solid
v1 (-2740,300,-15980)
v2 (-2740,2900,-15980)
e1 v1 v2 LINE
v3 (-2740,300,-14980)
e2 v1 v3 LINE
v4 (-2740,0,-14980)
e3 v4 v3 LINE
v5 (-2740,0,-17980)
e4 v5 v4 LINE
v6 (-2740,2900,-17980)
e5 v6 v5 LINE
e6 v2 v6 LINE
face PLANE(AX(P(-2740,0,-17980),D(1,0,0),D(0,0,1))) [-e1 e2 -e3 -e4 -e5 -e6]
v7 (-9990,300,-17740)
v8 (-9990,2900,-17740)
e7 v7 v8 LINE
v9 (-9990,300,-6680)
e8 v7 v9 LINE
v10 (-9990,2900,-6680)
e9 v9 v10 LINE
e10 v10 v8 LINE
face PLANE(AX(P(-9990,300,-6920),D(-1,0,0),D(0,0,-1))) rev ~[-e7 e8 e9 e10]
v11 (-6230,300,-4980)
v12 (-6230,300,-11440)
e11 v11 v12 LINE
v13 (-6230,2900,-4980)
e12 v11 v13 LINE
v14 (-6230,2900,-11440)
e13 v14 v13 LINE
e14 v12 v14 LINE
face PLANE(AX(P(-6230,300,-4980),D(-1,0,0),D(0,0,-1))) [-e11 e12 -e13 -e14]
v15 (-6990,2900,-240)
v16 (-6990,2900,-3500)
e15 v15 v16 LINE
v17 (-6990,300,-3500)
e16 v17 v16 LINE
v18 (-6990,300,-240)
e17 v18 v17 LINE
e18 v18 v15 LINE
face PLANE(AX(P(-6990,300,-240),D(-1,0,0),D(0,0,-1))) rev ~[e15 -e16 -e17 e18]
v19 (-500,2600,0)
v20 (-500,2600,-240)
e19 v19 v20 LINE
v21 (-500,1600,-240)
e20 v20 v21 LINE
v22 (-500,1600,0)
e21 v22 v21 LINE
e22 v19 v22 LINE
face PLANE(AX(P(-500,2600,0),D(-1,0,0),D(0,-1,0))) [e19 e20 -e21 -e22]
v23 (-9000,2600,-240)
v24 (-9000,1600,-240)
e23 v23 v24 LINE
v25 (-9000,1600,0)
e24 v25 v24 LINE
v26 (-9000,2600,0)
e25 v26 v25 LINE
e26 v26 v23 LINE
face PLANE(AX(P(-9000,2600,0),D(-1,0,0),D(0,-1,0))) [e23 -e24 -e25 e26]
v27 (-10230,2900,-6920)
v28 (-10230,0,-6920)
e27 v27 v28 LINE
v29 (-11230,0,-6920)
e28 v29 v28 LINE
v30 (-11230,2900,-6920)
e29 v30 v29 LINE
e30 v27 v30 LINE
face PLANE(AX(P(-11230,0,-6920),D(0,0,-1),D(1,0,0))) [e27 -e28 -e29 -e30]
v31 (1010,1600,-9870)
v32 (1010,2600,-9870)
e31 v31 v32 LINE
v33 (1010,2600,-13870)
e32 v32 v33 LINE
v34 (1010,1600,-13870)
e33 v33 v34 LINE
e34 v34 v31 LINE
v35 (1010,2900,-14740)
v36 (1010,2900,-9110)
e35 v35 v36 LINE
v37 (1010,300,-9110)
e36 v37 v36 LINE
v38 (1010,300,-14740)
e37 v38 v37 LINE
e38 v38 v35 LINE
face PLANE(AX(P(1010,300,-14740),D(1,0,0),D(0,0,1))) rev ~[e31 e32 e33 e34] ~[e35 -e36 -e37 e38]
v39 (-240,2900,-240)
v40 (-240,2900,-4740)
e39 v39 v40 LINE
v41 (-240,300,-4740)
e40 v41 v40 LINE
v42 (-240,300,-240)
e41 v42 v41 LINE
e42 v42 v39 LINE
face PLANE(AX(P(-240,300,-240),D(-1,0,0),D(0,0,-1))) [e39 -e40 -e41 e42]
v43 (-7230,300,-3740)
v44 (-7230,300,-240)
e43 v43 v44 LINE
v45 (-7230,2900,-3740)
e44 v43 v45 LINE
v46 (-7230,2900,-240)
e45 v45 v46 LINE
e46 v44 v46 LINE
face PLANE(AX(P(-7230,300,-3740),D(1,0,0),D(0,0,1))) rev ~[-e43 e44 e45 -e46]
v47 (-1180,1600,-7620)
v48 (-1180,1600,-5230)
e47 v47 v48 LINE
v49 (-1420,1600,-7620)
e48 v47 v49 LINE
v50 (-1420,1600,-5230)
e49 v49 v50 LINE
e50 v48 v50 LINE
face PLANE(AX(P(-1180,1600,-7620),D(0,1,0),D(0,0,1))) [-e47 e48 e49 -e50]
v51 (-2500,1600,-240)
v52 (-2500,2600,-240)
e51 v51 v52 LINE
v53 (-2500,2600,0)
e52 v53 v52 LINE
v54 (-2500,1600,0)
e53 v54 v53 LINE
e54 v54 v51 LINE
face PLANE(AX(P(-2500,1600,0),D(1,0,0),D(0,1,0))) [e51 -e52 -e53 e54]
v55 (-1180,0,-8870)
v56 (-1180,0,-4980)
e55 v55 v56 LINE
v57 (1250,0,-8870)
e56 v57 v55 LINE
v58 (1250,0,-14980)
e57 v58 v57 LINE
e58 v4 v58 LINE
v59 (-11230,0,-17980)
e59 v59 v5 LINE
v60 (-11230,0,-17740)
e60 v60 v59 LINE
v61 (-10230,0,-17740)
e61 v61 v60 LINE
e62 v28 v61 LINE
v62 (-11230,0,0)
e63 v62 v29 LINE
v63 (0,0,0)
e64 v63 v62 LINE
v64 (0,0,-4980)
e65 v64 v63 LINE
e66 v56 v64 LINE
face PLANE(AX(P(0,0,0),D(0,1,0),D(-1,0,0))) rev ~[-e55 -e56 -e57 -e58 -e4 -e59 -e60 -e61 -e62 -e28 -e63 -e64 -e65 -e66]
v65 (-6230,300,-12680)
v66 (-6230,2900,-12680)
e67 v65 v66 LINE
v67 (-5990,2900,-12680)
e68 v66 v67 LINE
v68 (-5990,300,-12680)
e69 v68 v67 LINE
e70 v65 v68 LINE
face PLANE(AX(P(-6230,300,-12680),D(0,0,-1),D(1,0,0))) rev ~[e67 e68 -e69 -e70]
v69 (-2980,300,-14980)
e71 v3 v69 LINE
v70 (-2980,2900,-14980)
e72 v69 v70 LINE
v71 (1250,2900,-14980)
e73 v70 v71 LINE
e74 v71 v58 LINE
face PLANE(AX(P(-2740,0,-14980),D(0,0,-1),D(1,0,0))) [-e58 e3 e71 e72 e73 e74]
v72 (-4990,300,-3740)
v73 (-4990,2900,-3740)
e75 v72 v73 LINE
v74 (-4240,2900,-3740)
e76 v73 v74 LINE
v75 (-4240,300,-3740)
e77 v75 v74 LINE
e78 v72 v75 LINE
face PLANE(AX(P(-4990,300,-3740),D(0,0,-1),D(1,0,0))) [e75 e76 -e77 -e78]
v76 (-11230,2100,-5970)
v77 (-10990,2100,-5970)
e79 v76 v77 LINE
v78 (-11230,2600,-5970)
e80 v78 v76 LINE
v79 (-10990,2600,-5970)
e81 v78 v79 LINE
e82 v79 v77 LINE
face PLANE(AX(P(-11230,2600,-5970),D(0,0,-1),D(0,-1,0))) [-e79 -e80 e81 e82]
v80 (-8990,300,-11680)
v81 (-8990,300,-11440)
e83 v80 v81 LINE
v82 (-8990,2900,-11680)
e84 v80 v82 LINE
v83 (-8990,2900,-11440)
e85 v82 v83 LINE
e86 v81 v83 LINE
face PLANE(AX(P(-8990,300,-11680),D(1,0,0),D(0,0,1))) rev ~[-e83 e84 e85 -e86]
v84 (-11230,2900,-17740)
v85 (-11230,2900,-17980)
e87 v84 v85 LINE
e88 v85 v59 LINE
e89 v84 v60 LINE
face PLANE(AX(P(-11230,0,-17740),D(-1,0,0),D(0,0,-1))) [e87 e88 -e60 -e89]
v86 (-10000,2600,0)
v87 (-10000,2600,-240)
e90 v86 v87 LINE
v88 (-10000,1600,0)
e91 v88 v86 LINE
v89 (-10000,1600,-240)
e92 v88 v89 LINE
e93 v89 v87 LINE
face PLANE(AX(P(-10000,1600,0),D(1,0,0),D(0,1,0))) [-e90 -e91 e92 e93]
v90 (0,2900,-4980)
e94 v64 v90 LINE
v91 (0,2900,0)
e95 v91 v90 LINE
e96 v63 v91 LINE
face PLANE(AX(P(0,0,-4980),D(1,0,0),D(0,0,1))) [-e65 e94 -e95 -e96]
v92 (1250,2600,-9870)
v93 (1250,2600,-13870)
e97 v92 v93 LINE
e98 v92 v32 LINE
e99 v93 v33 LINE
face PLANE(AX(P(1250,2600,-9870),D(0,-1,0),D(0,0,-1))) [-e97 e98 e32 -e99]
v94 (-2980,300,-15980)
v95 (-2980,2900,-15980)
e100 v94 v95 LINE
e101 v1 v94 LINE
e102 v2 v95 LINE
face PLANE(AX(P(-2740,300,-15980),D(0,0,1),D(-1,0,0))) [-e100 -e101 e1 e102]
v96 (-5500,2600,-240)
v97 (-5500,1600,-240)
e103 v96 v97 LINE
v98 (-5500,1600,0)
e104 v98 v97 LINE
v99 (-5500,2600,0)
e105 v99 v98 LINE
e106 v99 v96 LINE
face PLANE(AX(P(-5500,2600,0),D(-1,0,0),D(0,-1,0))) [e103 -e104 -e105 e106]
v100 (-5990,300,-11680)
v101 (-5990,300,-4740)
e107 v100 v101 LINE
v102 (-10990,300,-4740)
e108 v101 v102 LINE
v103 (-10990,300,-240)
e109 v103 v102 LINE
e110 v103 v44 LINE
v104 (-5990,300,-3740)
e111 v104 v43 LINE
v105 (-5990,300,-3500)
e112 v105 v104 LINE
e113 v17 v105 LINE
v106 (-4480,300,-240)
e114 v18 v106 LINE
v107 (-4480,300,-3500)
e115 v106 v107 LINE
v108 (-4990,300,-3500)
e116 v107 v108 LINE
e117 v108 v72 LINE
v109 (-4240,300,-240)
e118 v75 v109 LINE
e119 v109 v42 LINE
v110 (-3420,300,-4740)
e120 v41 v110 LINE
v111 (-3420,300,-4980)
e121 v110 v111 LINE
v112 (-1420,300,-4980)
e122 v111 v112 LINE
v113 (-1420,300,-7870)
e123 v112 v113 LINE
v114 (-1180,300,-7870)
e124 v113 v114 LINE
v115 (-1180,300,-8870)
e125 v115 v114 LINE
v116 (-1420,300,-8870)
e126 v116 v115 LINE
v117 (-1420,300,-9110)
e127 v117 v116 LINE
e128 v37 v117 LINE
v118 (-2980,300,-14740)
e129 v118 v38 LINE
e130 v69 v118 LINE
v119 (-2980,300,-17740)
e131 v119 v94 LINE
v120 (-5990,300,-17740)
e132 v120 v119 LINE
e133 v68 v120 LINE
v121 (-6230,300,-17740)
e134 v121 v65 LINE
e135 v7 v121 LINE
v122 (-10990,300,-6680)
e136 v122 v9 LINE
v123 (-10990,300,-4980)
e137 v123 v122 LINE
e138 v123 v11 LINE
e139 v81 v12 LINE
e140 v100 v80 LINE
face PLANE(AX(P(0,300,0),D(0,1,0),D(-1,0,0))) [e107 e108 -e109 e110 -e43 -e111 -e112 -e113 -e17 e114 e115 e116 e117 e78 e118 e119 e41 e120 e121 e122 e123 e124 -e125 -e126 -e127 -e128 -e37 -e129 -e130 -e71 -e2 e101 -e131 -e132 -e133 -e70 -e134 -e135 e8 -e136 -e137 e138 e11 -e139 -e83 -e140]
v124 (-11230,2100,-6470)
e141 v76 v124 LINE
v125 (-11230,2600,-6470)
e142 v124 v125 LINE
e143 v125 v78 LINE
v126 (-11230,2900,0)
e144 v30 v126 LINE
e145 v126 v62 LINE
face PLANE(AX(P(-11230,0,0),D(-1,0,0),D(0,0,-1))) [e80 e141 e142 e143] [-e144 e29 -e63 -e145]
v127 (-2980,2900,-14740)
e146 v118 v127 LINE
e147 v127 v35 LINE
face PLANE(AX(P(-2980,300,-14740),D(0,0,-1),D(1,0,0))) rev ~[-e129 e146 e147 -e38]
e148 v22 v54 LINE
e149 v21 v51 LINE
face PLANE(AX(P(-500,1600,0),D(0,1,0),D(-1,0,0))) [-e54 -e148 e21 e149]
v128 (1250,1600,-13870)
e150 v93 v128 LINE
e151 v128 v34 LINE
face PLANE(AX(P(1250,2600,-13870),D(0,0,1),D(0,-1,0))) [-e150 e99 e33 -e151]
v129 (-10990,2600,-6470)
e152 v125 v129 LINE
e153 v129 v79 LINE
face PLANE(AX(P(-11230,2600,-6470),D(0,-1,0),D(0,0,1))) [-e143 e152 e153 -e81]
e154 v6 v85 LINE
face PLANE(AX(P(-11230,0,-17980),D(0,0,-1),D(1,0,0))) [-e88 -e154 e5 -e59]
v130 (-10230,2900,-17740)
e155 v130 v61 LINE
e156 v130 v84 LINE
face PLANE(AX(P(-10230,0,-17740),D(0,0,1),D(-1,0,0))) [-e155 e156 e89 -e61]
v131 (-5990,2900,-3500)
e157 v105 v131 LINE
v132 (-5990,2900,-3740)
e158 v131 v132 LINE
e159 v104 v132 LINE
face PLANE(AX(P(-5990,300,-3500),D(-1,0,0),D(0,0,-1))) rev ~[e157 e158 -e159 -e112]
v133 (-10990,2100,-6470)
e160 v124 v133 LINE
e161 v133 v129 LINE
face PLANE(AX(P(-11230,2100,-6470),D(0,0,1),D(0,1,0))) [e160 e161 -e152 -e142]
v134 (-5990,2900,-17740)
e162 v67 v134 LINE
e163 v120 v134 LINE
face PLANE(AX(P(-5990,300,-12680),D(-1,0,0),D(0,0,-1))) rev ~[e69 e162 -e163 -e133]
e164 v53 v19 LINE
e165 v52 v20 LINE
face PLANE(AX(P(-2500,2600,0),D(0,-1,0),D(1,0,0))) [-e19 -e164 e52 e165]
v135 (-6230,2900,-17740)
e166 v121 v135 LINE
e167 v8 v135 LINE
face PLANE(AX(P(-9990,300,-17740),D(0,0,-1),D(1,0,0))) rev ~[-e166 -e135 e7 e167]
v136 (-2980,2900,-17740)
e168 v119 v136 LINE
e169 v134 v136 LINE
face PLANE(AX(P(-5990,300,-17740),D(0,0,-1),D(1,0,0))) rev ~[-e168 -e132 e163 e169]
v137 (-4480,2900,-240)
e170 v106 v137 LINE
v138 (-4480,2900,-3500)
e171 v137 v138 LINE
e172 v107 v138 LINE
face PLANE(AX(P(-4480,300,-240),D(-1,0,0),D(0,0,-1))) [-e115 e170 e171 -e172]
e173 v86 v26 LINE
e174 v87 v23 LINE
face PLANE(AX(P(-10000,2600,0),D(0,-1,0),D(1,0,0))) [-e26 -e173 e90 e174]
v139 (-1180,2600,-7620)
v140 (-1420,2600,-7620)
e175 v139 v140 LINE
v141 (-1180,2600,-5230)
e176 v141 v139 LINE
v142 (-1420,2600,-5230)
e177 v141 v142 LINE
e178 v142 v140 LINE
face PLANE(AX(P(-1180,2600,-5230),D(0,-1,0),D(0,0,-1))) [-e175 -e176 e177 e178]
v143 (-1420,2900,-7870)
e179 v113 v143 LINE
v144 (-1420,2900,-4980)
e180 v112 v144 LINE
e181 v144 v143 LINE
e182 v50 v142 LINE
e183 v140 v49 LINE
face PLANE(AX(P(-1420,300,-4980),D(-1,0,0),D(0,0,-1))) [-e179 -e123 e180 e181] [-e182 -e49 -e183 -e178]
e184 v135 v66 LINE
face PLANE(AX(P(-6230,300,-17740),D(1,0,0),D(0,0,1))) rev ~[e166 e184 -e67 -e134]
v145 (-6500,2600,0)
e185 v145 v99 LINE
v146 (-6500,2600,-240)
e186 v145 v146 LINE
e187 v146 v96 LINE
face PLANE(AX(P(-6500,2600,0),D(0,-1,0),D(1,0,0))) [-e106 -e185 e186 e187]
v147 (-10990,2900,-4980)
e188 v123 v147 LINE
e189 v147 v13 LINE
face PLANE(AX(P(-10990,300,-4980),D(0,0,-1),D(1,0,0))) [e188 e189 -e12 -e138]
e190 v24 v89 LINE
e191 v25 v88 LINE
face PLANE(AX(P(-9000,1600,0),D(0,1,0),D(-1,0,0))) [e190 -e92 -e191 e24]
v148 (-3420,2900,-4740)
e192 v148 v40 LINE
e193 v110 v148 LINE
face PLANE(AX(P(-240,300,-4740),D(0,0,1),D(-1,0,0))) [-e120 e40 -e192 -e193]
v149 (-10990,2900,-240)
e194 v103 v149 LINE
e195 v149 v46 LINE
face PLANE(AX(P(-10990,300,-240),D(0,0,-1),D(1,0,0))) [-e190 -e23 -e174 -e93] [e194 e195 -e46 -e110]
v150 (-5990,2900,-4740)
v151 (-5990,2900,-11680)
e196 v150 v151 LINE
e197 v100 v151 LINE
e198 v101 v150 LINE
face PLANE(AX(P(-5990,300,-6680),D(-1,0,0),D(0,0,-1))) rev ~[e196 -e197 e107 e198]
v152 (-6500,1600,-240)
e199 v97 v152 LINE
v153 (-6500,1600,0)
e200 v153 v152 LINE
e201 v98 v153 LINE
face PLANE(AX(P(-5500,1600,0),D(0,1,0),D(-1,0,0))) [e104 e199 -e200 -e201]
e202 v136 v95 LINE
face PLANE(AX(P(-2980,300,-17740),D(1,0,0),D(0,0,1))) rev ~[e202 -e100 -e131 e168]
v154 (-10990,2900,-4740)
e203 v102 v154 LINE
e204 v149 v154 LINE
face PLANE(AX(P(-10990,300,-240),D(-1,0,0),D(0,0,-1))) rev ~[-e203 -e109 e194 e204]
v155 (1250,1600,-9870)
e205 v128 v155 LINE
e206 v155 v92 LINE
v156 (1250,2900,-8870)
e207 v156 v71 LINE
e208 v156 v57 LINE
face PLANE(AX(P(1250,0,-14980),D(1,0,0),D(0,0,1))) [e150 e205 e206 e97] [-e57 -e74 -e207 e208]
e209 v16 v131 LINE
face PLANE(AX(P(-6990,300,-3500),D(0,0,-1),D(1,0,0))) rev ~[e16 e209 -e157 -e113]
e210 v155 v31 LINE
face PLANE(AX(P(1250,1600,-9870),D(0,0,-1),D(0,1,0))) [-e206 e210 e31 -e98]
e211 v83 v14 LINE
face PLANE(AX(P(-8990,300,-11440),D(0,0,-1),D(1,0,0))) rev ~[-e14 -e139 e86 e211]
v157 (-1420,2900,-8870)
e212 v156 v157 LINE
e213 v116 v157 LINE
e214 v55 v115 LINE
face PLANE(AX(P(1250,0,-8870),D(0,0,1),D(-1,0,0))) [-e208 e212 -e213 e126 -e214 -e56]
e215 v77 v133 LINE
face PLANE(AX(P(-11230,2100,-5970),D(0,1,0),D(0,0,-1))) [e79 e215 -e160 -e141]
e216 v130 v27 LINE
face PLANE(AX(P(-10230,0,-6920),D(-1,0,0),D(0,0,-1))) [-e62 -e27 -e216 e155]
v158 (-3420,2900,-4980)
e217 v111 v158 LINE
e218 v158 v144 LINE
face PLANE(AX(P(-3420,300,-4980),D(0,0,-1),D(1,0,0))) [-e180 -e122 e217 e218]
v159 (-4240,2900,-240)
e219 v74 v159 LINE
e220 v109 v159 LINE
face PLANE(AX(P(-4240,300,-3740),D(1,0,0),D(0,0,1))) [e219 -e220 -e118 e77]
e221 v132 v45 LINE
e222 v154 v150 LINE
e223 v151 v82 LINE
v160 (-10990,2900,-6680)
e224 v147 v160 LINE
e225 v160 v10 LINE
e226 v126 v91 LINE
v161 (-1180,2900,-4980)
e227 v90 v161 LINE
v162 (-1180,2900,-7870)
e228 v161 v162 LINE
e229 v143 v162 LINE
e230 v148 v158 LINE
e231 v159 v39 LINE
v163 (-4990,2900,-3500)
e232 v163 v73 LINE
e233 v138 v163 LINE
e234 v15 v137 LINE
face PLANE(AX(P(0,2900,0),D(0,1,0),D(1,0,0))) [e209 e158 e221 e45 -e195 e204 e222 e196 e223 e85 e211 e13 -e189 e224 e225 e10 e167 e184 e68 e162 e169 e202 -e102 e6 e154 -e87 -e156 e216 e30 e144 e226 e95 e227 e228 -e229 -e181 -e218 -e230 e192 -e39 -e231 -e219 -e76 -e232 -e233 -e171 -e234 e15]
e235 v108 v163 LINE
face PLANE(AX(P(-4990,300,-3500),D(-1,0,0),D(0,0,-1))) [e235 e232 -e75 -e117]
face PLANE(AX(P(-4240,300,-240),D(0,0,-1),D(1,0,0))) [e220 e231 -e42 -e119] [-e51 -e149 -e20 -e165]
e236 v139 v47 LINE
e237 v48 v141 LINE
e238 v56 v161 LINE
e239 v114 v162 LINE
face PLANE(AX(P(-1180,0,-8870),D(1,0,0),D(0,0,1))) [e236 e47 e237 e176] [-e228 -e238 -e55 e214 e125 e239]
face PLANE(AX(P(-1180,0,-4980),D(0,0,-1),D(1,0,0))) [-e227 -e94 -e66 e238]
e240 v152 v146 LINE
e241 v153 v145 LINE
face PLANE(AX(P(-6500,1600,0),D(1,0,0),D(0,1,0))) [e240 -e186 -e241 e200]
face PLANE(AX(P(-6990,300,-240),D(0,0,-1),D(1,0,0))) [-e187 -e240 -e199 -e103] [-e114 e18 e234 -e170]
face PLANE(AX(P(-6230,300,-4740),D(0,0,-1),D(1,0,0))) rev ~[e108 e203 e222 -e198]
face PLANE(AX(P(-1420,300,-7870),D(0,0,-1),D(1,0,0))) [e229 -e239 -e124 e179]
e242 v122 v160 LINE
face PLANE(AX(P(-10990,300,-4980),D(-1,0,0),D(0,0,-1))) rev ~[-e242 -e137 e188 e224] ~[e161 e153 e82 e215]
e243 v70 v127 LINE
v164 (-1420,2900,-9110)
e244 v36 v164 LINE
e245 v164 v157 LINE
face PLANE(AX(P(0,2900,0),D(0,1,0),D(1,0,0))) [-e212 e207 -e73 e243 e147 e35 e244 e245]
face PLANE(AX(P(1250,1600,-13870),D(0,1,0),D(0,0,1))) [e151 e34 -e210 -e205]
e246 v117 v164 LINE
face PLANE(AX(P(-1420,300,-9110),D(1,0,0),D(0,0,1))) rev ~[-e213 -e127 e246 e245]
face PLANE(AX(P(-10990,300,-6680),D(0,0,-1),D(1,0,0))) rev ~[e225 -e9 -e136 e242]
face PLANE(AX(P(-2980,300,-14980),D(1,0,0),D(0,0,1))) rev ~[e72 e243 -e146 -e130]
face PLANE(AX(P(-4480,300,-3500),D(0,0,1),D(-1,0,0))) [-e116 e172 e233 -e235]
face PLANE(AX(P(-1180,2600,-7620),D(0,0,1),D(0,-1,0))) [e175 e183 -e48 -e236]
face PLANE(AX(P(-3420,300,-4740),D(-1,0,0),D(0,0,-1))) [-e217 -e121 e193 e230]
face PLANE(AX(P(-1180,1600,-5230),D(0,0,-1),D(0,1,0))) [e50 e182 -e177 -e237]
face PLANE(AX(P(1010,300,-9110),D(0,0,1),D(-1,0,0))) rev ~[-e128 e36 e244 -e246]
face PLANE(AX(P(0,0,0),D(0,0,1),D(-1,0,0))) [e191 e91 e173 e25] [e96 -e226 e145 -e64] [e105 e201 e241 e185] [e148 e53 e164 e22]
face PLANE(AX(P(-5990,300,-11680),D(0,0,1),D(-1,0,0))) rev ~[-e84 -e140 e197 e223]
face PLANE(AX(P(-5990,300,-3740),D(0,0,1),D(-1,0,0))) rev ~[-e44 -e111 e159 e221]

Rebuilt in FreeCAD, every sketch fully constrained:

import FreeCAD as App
import Part
import Sketcher
Q = App.Units.Quantity

doc = App.newDocument("Part")
params = doc.addObject("Spreadsheet::Sheet", "Params")
for row, (alias, value) in enumerate([
    ("sketch1_width", "11230 mm"),
    ("sketch1_width2", "1180 mm"),
    ("sketch1_width3", "2430 mm"),
    ("sketch1_width4", "3990 mm"),
    ("sketch1_width5", "1000 mm"),
    ("pad1_length", "300 mm"),
    ("sketch2_width", "240 mm"),
    ("sketch2_width2", "2000 mm"),
    ("sketch2_width3", "2510 mm"),
    ("sketch2_width4", "1000 mm"),
    ("sketch2_width5", "3760 mm"),
    ("pad2_length", "2600 mm"),
    ("sketch3_width", "1000 mm"),
    ("sketch3_width2", "2000 mm"),
    ("pocket1_length", "240 mm"),
    ("sketch4_width", "1000 mm"),
    ("sketch4_height", "4000 mm"),
    ("pocket2_length", "240 mm"),
    ("sketch5_width", "1000 mm"),
    ("sketch5_height", "2390 mm"),
    ("pocket3_length", "240 mm"),
    ("sketch6_width", "500 mm"),
    ("pocket4_length", "240 mm"),
], start=1):
    params.set(f"A{row}", alias)
    params.set(f"B{row}", "=" + value)
    params.setAlias(f"B{row}", alias)

body = doc.addObject("PartDesign::Body", "Body")

# Sketch on XZ plane
sketch1 = body.newObject("Sketcher::SketchObject", "Sketch")
sketch1.AttachmentSupport = (doc.getObject("XZ_Plane"), [""])
sketch1.MapMode = "FlatFace"
sketch1.addGeometry([
    Part.LineSegment(App.Vector(-11230, 0, 0), App.Vector(0, 0, 0)),  # 0
    Part.LineSegment(App.Vector(0, 0, 0), App.Vector(0, -4980, 0)),  # 1
    Part.LineSegment(App.Vector(0, -4980, 0), App.Vector(-1180, -4980, 0)),  # 2
    Part.LineSegment(App.Vector(-1180, -4980, 0), App.Vector(-1180, -8870, 0)),  # 3
    Part.LineSegment(App.Vector(-1180, -8870, 0), App.Vector(1250, -8870, 0)),  # 4
    Part.LineSegment(App.Vector(1250, -8870, 0), App.Vector(1250, -14980, 0)),  # 5
    Part.LineSegment(App.Vector(1250, -14980, 0), App.Vector(-2740, -14980, 0)),  # 6
    Part.LineSegment(App.Vector(-2740, -14980, 0), App.Vector(-2740, -17980, 0)),  # 7
    Part.LineSegment(App.Vector(-2740, -17980, 0), App.Vector(-11230, -17980, 0)),  # 8
    Part.LineSegment(App.Vector(-11230, -17980, 0), App.Vector(-11230, -17740, 0)),  # 9
    Part.LineSegment(App.Vector(-11230, -17740, 0), App.Vector(-10230, -17740, 0)),  # 10
    Part.LineSegment(App.Vector(-10230, -17740, 0), App.Vector(-10230, -6920, 0)),  # 11
    Part.LineSegment(App.Vector(-10230, -6920, 0), App.Vector(-11230, -6920, 0)),  # 12
    Part.LineSegment(App.Vector(-11230, -6920, 0), App.Vector(-11230, 0, 0)),  # 13
], False)
sketch1.addConstraint([
    Sketcher.Constraint("Coincident", 0, 2, 1, 1),
    Sketcher.Constraint("Coincident", 1, 2, 2, 1),
    Sketcher.Constraint("Coincident", 2, 2, 3, 1),
    Sketcher.Constraint("Coincident", 3, 2, 4, 1),
    Sketcher.Constraint("Coincident", 4, 2, 5, 1),
    Sketcher.Constraint("Coincident", 5, 2, 6, 1),
    Sketcher.Constraint("Coincident", 6, 2, 7, 1),
    Sketcher.Constraint("Coincident", 7, 2, 8, 1),
    Sketcher.Constraint("Coincident", 8, 2, 9, 1),
    Sketcher.Constraint("Coincident", 9, 2, 10, 1),
    Sketcher.Constraint("Coincident", 10, 2, 11, 1),
    Sketcher.Constraint("Coincident", 11, 2, 12, 1),
    Sketcher.Constraint("Coincident", 12, 2, 13, 1),
    Sketcher.Constraint("Coincident", 13, 2, 0, 1),
    Sketcher.Constraint("Horizontal", 0),
    Sketcher.Constraint("Vertical", 1),
    Sketcher.Constraint("Horizontal", 2),
    Sketcher.Constraint("Vertical", 3),
    Sketcher.Constraint("Horizontal", 4),
    Sketcher.Constraint("Vertical", 5),
    Sketcher.Constraint("Horizontal", 6),
    Sketcher.Constraint("Vertical", 7),
    Sketcher.Constraint("Horizontal", 8),
    Sketcher.Constraint("Vertical", 9),
    Sketcher.Constraint("Horizontal", 10),
    Sketcher.Constraint("Vertical", 11),
    Sketcher.Constraint("Horizontal", 12),
    Sketcher.Constraint("Vertical", 13),
    Sketcher.Constraint("Coincident", 0, 2, -1, 1),
    Sketcher.Constraint("Vertical", 9, 2, 12, 2),
    Sketcher.Constraint("DistanceX", 0, 1, 0, 2, Q("11230 mm")),
    Sketcher.Constraint("DistanceX", 2, 2, 2, 1, Q("1180 mm")),
    Sketcher.Constraint("DistanceX", 4, 1, 4, 2, Q("2430 mm")),
    Sketcher.Constraint("DistanceX", 6, 2, 6, 1, Q("3990 mm")),
    Sketcher.Constraint("DistanceX", 10, 1, 10, 2, Q("1000 mm")),
    Sketcher.Constraint("DistanceY", 3, 2, 3, 1, Q("3890 mm")),
    Sketcher.Constraint("DistanceY", 5, 2, 5, 1, Q("6110 mm")),
    Sketcher.Constraint("DistanceY", 7, 2, 7, 1, Q("3000 mm")),
    Sketcher.Constraint("DistanceY", 9, 1, 9, 2, Q("240 mm")),
    Sketcher.Constraint("DistanceY", 11, 1, 11, 2, Q("10820 mm")),
    Sketcher.Constraint("DistanceY", 13, 1, 13, 2, Q("6920 mm")),
])
sketch1.setExpression("Constraints[30]", "Params.sketch1_width")
sketch1.setExpression("Constraints[31]", "Params.sketch1_width2")
sketch1.setExpression("Constraints[32]", "Params.sketch1_width3")
sketch1.setExpression("Constraints[33]", "Params.sketch1_width4")
sketch1.setExpression("Constraints[34]", "Params.sketch1_width5")
pad1 = body.newObject("PartDesign::Pad", "Pad")
pad1.Profile = sketch1
pad1.setExpression("Length", "Params.pad1_length")
pad1.Reversed = True

# Sketch on XZ plane
sketch2 = body.newObject("Sketcher::SketchObject", "Sketch001")
sketch2.AttachmentSupport = (doc.getObject("XZ_Plane"), [""])
sketch2.MapMode = "FlatFace"
sketch2.AttachmentOffset = App.Placement(App.Vector(0, 0, -300), App.Rotation())
sketch2.addGeometry([
    Part.LineSegment(App.Vector(-11230, -6920, 0), App.Vector(-11230, 0, 0)),  # 0
    Part.LineSegment(App.Vector(-11230, 0, 0), App.Vector(0, 0, 0)),  # 1
    Part.LineSegment(App.Vector(0, 0, 0), App.Vector(0, -4980, 0)),  # 2
    Part.LineSegment(App.Vector(0, -4980, 0), App.Vector(-1180, -4980, 0)),  # 3
    Part.LineSegment(App.Vector(-1180, -4980, 0), App.Vector(-1180, -7870, 0)),  # 4
    Part.LineSegment(App.Vector(-1180, -7870, 0), App.Vector(-1420, -7870, 0)),  # 5
    Part.LineSegment(App.Vector(-1420, -7870, 0), App.Vector(-1420, -4980, 0)),  # 6
    Part.LineSegment(App.Vector(-1420, -4980, 0), App.Vector(-3420, -4980, 0)),  # 7
    Part.LineSegment(App.Vector(-3420, -4980, 0), App.Vector(-3420, -4740, 0)),  # 8
    Part.LineSegment(App.Vector(-3420, -4740, 0), App.Vector(-240, -4740, 0)),  # 9
    Part.LineSegment(App.Vector(-240, -4740, 0), App.Vector(-240, -240, 0)),  # 10
    Part.LineSegment(App.Vector(-240, -240, 0), App.Vector(-4240, -240, 0)),  # 11
    Part.LineSegment(App.Vector(-4240, -240, 0), App.Vector(-4240, -3740, 0)),  # 12
    Part.LineSegment(App.Vector(-4240, -3740, 0), App.Vector(-4990, -3740, 0)),  # 13
    Part.LineSegment(App.Vector(-4990, -3740, 0), App.Vector(-4990, -3500, 0)),  # 14
    Part.LineSegment(App.Vector(-4990, -3500, 0), App.Vector(-4480, -3500, 0)),  # 15
    Part.LineSegment(App.Vector(-4480, -3500, 0), App.Vector(-4480, -240, 0)),  # 16
    Part.LineSegment(App.Vector(-4480, -240, 0), App.Vector(-6990, -240, 0)),  # 17
    Part.LineSegment(App.Vector(-6990, -240, 0), App.Vector(-6990, -3500, 0)),  # 18
    Part.LineSegment(App.Vector(-6990, -3500, 0), App.Vector(-5990, -3500, 0)),  # 19
    Part.LineSegment(App.Vector(-5990, -3500, 0), App.Vector(-5990, -3740, 0)),  # 20
    Part.LineSegment(App.Vector(-5990, -3740, 0), App.Vector(-7230, -3740, 0)),  # 21
    Part.LineSegment(App.Vector(-7230, -3740, 0), App.Vector(-7230, -240, 0)),  # 22
    Part.LineSegment(App.Vector(-7230, -240, 0), App.Vector(-10990, -240, 0)),  # 23
    Part.LineSegment(App.Vector(-10990, -240, 0), App.Vector(-10990, -4740, 0)),  # 24
    Part.LineSegment(App.Vector(-10990, -4740, 0), App.Vector(-5990, -4740, 0)),  # 25
    Part.LineSegment(App.Vector(-5990, -4740, 0), App.Vector(-5990, -11680, 0)),  # 26
    Part.LineSegment(App.Vector(-5990, -11680, 0), App.Vector(-8990, -11680, 0)),  # 27
    Part.LineSegment(App.Vector(-8990, -11680, 0), App.Vector(-8990, -11440, 0)),  # 28
    Part.LineSegment(App.Vector(-8990, -11440, 0), App.Vector(-6230, -11440, 0)),  # 29
    Part.LineSegment(App.Vector(-6230, -11440, 0), App.Vector(-6230, -4980, 0)),  # 30
    Part.LineSegment(App.Vector(-6230, -4980, 0), App.Vector(-10990, -4980, 0)),  # 31
    Part.LineSegment(App.Vector(-10990, -4980, 0), App.Vector(-10990, -6680, 0)),  # 32
    Part.LineSegment(App.Vector(-10990, -6680, 0), App.Vector(-9990, -6680, 0)),  # 33
    Part.LineSegment(App.Vector(-9990, -6680, 0), App.Vector(-9990, -17740, 0)),  # 34
    Part.LineSegment(App.Vector(-9990, -17740, 0), App.Vector(-6230, -17740, 0)),  # 35
    Part.LineSegment(App.Vector(-6230, -17740, 0), App.Vector(-6230, -12680, 0)),  # 36
    Part.LineSegment(App.Vector(-6230, -12680, 0), App.Vector(-5990, -12680, 0)),  # 37
    Part.LineSegment(App.Vector(-5990, -12680, 0), App.Vector(-5990, -17740, 0)),  # 38
    Part.LineSegment(App.Vector(-5990, -17740, 0), App.Vector(-2980, -17740, 0)),  # 39
    Part.LineSegment(App.Vector(-2980, -17740, 0), App.Vector(-2980, -15980, 0)),  # 40
    Part.LineSegment(App.Vector(-2980, -15980, 0), App.Vector(-2740, -15980, 0)),  # 41
    Part.LineSegment(App.Vector(-2740, -15980, 0), App.Vector(-2740, -17980, 0)),  # 42
    Part.LineSegment(App.Vector(-2740, -17980, 0), App.Vector(-11230, -17980, 0)),  # 43
    Part.LineSegment(App.Vector(-11230, -17980, 0), App.Vector(-11230, -17740, 0)),  # 44
    Part.LineSegment(App.Vector(-11230, -17740, 0), App.Vector(-10230, -17740, 0)),  # 45
    Part.LineSegment(App.Vector(-10230, -17740, 0), App.Vector(-10230, -6920, 0)),  # 46
    Part.LineSegment(App.Vector(-10230, -6920, 0), App.Vector(-11230, -6920, 0)),  # 47
    Part.LineSegment(App.Vector(-1420, -8870, 0), App.Vector(1250, -8870, 0)),  # 48
    Part.LineSegment(App.Vector(1250, -8870, 0), App.Vector(1250, -14980, 0)),  # 49
    Part.LineSegment(App.Vector(1250, -14980, 0), App.Vector(-2980, -14980, 0)),  # 50
    Part.LineSegment(App.Vector(-2980, -14980, 0), App.Vector(-2980, -14740, 0)),  # 51
    Part.LineSegment(App.Vector(-2980, -14740, 0), App.Vector(1010, -14740, 0)),  # 52
    Part.LineSegment(App.Vector(1010, -14740, 0), App.Vector(1010, -9110, 0)),  # 53
    Part.LineSegment(App.Vector(1010, -9110, 0), App.Vector(-1420, -9110, 0)),  # 54
    Part.LineSegment(App.Vector(-1420, -9110, 0), App.Vector(-1420, -8870, 0)),  # 55
], False)
sketch2.addConstraint([
    Sketcher.Constraint("Coincident", 0, 2, 1, 1),
    Sketcher.Constraint("Coincident", 1, 2, 2, 1),
    Sketcher.Constraint("Coincident", 2, 2, 3, 1),
    Sketcher.Constraint("Coincident", 3, 2, 4, 1),
    Sketcher.Constraint("Coincident", 4, 2, 5, 1),
    Sketcher.Constraint("Coincident", 5, 2, 6, 1),
    Sketcher.Constraint("Coincident", 6, 2, 7, 1),
    Sketcher.Constraint("Coincident", 7, 2, 8, 1),
    Sketcher.Constraint("Coincident", 8, 2, 9, 1),
    Sketcher.Constraint("Coincident", 9, 2, 10, 1),
    Sketcher.Constraint("Coincident", 10, 2, 11, 1),
    Sketcher.Constraint("Coincident", 11, 2, 12, 1),
    Sketcher.Constraint("Coincident", 12, 2, 13, 1),
    Sketcher.Constraint("Coincident", 13, 2, 14, 1),
    Sketcher.Constraint("Coincident", 14, 2, 15, 1),
    Sketcher.Constraint("Coincident", 15, 2, 16, 1),
    Sketcher.Constraint("Coincident", 16, 2, 17, 1),
    Sketcher.Constraint("Coincident", 17, 2, 18, 1),
    Sketcher.Constraint("Coincident", 18, 2, 19, 1),
    Sketcher.Constraint("Coincident", 19, 2, 20, 1),
    Sketcher.Constraint("Coincident", 20, 2, 21, 1),
    Sketcher.Constraint("Coincident", 21, 2, 22, 1),
    Sketcher.Constraint("Coincident", 22, 2, 23, 1),
    Sketcher.Constraint("Coincident", 23, 2, 24, 1),
    Sketcher.Constraint("Coincident", 24, 2, 25, 1),
    Sketcher.Constraint("Coincident", 25, 2, 26, 1),
    Sketcher.Constraint("Coincident", 26, 2, 27, 1),
    Sketcher.Constraint("Coincident", 27, 2, 28, 1),
    Sketcher.Constraint("Coincident", 28, 2, 29, 1),
    Sketcher.Constraint("Coincident", 29, 2, 30, 1),
    Sketcher.Constraint("Coincident", 30, 2, 31, 1),
    Sketcher.Constraint("Coincident", 31, 2, 32, 1),
    Sketcher.Constraint("Coincident", 32, 2, 33, 1),
    Sketcher.Constraint("Coincident", 33, 2, 34, 1),
    Sketcher.Constraint("Coincident", 34, 2, 35, 1),
    Sketcher.Constraint("Coincident", 35, 2, 36, 1),
    Sketcher.Constraint("Coincident", 36, 2, 37, 1),
    Sketcher.Constraint("Coincident", 37, 2, 38, 1),
    Sketcher.Constraint("Coincident", 38, 2, 39, 1),
    Sketcher.Constraint("Coincident", 39, 2, 40, 1),
    Sketcher.Constraint("Coincident", 40, 2, 41, 1),
    Sketcher.Constraint("Coincident", 41, 2, 42, 1),
    Sketcher.Constraint("Coincident", 42, 2, 43, 1),
    Sketcher.Constraint("Coincident", 43, 2, 44, 1),
    Sketcher.Constraint("Coincident", 44, 2, 45, 1),
    Sketcher.Constraint("Coincident", 45, 2, 46, 1),
    Sketcher.Constraint("Coincident", 46, 2, 47, 1),
    Sketcher.Constraint("Coincident", 47, 2, 0, 1),
    Sketcher.Constraint("Coincident", 48, 2, 49, 1),
    Sketcher.Constraint("Coincident", 49, 2, 50, 1),
    Sketcher.Constraint("Coincident", 50, 2, 51, 1),
    Sketcher.Constraint("Coincident", 51, 2, 52, 1),
    Sketcher.Constraint("Coincident", 52, 2, 53, 1),
    Sketcher.Constraint("Coincident", 53, 2, 54, 1),
    Sketcher.Constraint("Coincident", 54, 2, 55, 1),
    Sketcher.Constraint("Coincident", 55, 2, 48, 1),
    Sketcher.Constraint("Vertical", 0),
    Sketcher.Constraint("Horizontal", 1),
    Sketcher.Constraint("Vertical", 2),
    Sketcher.Constraint("Horizontal", 3),
    Sketcher.Constraint("Vertical", 4),
    Sketcher.Constraint("Horizontal", 5),
    Sketcher.Constraint("Vertical", 6),
    Sketcher.Constraint("Horizontal", 7),
    Sketcher.Constraint("Vertical", 8),
    Sketcher.Constraint("Horizontal", 9),
    Sketcher.Constraint("Vertical", 10),
    Sketcher.Constraint("Horizontal", 11),
    Sketcher.Constraint("Vertical", 12),
    Sketcher.Constraint("Horizontal", 13),
    Sketcher.Constraint("Vertical", 14),
    Sketcher.Constraint("Horizontal", 15),
    Sketcher.Constraint("Vertical", 16),
    Sketcher.Constraint("Horizontal", 17),
    Sketcher.Constraint("Vertical", 18),
    Sketcher.Constraint("Horizontal", 19),
    Sketcher.Constraint("Vertical", 20),
    Sketcher.Constraint("Horizontal", 21),
    Sketcher.Constraint("Vertical", 22),
    Sketcher.Constraint("Horizontal", 23),
    Sketcher.Constraint("Vertical", 24),
    Sketcher.Constraint("Horizontal", 25),
    Sketcher.Constraint("Vertical", 26),
    Sketcher.Constraint("Horizontal", 27),
    Sketcher.Constraint("Vertical", 28),
    Sketcher.Constraint("Horizontal", 29),
    Sketcher.Constraint("Vertical", 30),
    Sketcher.Constraint("Horizontal", 31),
    Sketcher.Constraint("Vertical", 32),
    Sketcher.Constraint("Horizontal", 33),
    Sketcher.Constraint("Vertical", 34),
    Sketcher.Constraint("Horizontal", 35),
    Sketcher.Constraint("Vertical", 36),
    Sketcher.Constraint("Horizontal", 37),
    Sketcher.Constraint("Vertical", 38),
    Sketcher.Constraint("Horizontal", 39),
    Sketcher.Constraint("Vertical", 40),
    Sketcher.Constraint("Horizontal", 41),
    Sketcher.Constraint("Vertical", 42),
    Sketcher.Constraint("Horizontal", 43),
    Sketcher.Constraint("Vertical", 44),
    Sketcher.Constraint("Horizontal", 45),
    Sketcher.Constraint("Vertical", 46),
    Sketcher.Constraint("Horizontal", 47),
    Sketcher.Constraint("Horizontal", 48),
    Sketcher.Constraint("Vertical", 49),
    Sketcher.Constraint("Horizontal", 50),
    Sketcher.Constraint("Vertical", 51),
    Sketcher.Constraint("Horizontal", 52),
    Sketcher.Constraint("Vertical", 53),
    Sketcher.Constraint("Horizontal", 54),
    Sketcher.Constraint("Vertical", 55),
    Sketcher.Constraint("Coincident", 1, 2, -1, 1),
    Sketcher.Constraint("Horizontal", 3, 2, 6, 2),
    Sketcher.Constraint("Horizontal", 11, 2, 16, 2),
    Sketcher.Constraint("Horizontal", 15, 2, 18, 2),
    Sketcher.Constraint("Horizontal", 13, 2, 20, 2),
    Sketcher.Constraint("Horizontal", 17, 2, 22, 2),
    Sketcher.Constraint("Horizontal", 9, 2, 24, 2),
    Sketcher.Constraint("Horizontal", 7, 2, 30, 2),
    Sketcher.Constraint("Horizontal", 35, 2, 38, 2),
    Sketcher.Constraint("Horizontal", 39, 2, 44, 2),
    Sketcher.Constraint("Vertical", 20, 2, 25, 2),
    Sketcher.Constraint("Vertical", 24, 2, 31, 2),
    Sketcher.Constraint("Vertical", 30, 2, 35, 2),
    Sketcher.Constraint("Vertical", 26, 2, 37, 2),
    Sketcher.Constraint("Vertical", 0, 2, 43, 2),
    Sketcher.Constraint("Vertical", 40, 2, 50, 2),
    Sketcher.Constraint("Vertical", 6, 2, 54, 2),
    Sketcher.Constraint("Equal", 19, 33),
    Sketcher.Constraint("Equal", 23, 35),
    Sketcher.Constraint("Equal", 5, 37),
    Sketcher.Constraint("Equal", 37, 41),
    Sketcher.Constraint("Equal", 33, 45),
    Sketcher.Constraint("Equal", 41, 8),
    Sketcher.Constraint("Equal", 8, 14),
    Sketcher.Constraint("Equal", 20, 28),
    Sketcher.Constraint("Equal", 7, 42),
    Sketcher.Constraint("Equal", 28, 44),
    Sketcher.Constraint("Equal", 44, 51),
    Sketcher.Constraint("Equal", 51, 55),
    Sketcher.Constraint("DistanceX", 5, 2, 5, 1, Q("240 mm")),
    Sketcher.Constraint("DistanceX", 7, 2, 7, 1, Q("2000 mm")),
    Sketcher.Constraint("DistanceX", 17, 2, 17, 1, Q("2510 mm")),
    Sketcher.Constraint("DistanceX", 19, 1, 19, 2, Q("1000 mm")),
    Sketcher.Constraint("DistanceX", 23, 2, 23, 1, Q("3760 mm")),
    Sketcher.Constraint("DistanceX", 9, 2, -1, 1, Q("240 mm")),
    Sketcher.Constraint("DistanceY", 10, 2, -1, 1, Q("240 mm")),
    Sketcher.Constraint("DistanceY", 8, 2, 12, 2, Q("1000 mm")),
    Sketcher.Constraint("DistanceX", 15, 2, 12, 2, Q("240 mm")),
    Sketcher.Constraint("DistanceX", 17, 2, 14, 2, Q("2000 mm")),
    Sketcher.Constraint("DistanceX", 0, 2, 23, 2, Q("240 mm")),
    Sketcher.Constraint("DistanceX", 24, 2, 27, 2, Q("2000 mm")),
    Sketcher.Constraint("DistanceY", 36, 2, 26, 2, Q("1000 mm")),
    Sketcher.Constraint("DistanceY", 46, 2, 33, 2, Q("240 mm")),
    Sketcher.Constraint("DistanceY", 48, 2, 4, 2, Q("1000 mm")),
    Sketcher.Constraint("DistanceY", 41, 2, 49, 2, Q("1000 mm")),
    Sketcher.Constraint("DistanceY", 50, 2, 37, 2, Q("2300 mm")),
    Sketcher.Constraint("DistanceX", 52, 2, 49, 2, Q("240 mm")),
    Sketcher.Constraint("DistanceX", 1, 1, 1, 2, Q("11230 mm")),
    Sketcher.Constraint("DistanceX", 3, 2, 3, 1, Q("1180 mm")),
    Sketcher.Constraint("DistanceX", 39, 1, 39, 2, Q("3010 mm")),
    Sketcher.Constraint("DistanceX", 48, 1, 48, 2, Q("2670 mm")),
    Sketcher.Constraint("DistanceY", 0, 1, 0, 2, Q("6920 mm")),
    Sketcher.Constraint("DistanceY", 2, 2, 2, 1, Q("4980 mm")),
    Sketcher.Constraint("DistanceY", 4, 2, 4, 1, Q("2890 mm")),
    Sketcher.Constraint("DistanceY", 26, 2, 26, 1, Q("6940 mm")),
])
sketch2.setExpression("Constraints[141]", "Params.sketch2_width")
sketch2.setExpression("Constraints[142]", "Params.sketch2_width2")
sketch2.setExpression("Constraints[143]", "Params.sketch2_width3")
sketch2.setExpression("Constraints[144]", "Params.sketch2_width4")
sketch2.setExpression("Constraints[145]", "Params.sketch2_width5")
pad2 = body.newObject("PartDesign::Pad", "Pad001")
pad2.Profile = sketch2
pad2.setExpression("Length", "Params.pad2_length")
pad2.Reversed = True

# Sketch on XY plane
sketch3 = body.newObject("Sketcher::SketchObject", "Sketch002")
sketch3.AttachmentSupport = (doc.getObject("XY_Plane"), [""])
sketch3.MapMode = "FlatFace"
sketch3.addGeometry([
    Part.LineSegment(App.Vector(-9000, 2600, 0), App.Vector(-10000, 2600, 0)),  # 0
    Part.LineSegment(App.Vector(-10000, 2600, 0), App.Vector(-10000, 1600, 0)),  # 1
    Part.LineSegment(App.Vector(-10000, 1600, 0), App.Vector(-9000, 1600, 0)),  # 2
    Part.LineSegment(App.Vector(-9000, 1600, 0), App.Vector(-9000, 2600, 0)),  # 3
    Part.LineSegment(App.Vector(-5500, 2600, 0), App.Vector(-6500, 2600, 0)),  # 4
    Part.LineSegment(App.Vector(-6500, 2600, 0), App.Vector(-6500, 1600, 0)),  # 5
    Part.LineSegment(App.Vector(-6500, 1600, 0), App.Vector(-5500, 1600, 0)),  # 6
    Part.LineSegment(App.Vector(-5500, 1600, 0), App.Vector(-5500, 2600, 0)),  # 7
    Part.LineSegment(App.Vector(-500, 2600, 0), App.Vector(-2500, 2600, 0)),  # 8
    Part.LineSegment(App.Vector(-2500, 2600, 0), App.Vector(-2500, 1600, 0)),  # 9
    Part.LineSegment(App.Vector(-2500, 1600, 0), App.Vector(-500, 1600, 0)),  # 10
    Part.LineSegment(App.Vector(-500, 1600, 0), App.Vector(-500, 2600, 0)),  # 11
], False)
sketch3.addConstraint([
    Sketcher.Constraint("Coincident", 0, 2, 1, 1),
    Sketcher.Constraint("Coincident", 1, 2, 2, 1),
    Sketcher.Constraint("Coincident", 2, 2, 3, 1),
    Sketcher.Constraint("Coincident", 3, 2, 0, 1),
    Sketcher.Constraint("Coincident", 4, 2, 5, 1),
    Sketcher.Constraint("Coincident", 5, 2, 6, 1),
    Sketcher.Constraint("Coincident", 6, 2, 7, 1),
    Sketcher.Constraint("Coincident", 7, 2, 4, 1),
    Sketcher.Constraint("Coincident", 8, 2, 9, 1),
    Sketcher.Constraint("Coincident", 9, 2, 10, 1),
    Sketcher.Constraint("Coincident", 10, 2, 11, 1),
    Sketcher.Constraint("Coincident", 11, 2, 8, 1),
    Sketcher.Constraint("Horizontal", 0),
    Sketcher.Constraint("Vertical", 1),
    Sketcher.Constraint("Horizontal", 2),
    Sketcher.Constraint("Vertical", 3),
    Sketcher.Constraint("Horizontal", 4),
    Sketcher.Constraint("Vertical", 5),
    Sketcher.Constraint("Horizontal", 6),
    Sketcher.Constraint("Vertical", 7),
    Sketcher.Constraint("Horizontal", 8),
    Sketcher.Constraint("Vertical", 9),
    Sketcher.Constraint("Horizontal", 10),
    Sketcher.Constraint("Vertical", 11),
    Sketcher.Constraint("Horizontal", 3, 2, 4, 2),
    Sketcher.Constraint("Horizontal", 2, 2, 5, 2),
    Sketcher.Constraint("Horizontal", 7, 2, 8, 2),
    Sketcher.Constraint("Horizontal", 6, 2, 9, 2),
    Sketcher.Constraint("Equal", 2, 4),
    Sketcher.Constraint("Equal", 6, 1),
    Sketcher.Constraint("DistanceX", 0, 2, 0, 1, Q("1000 mm")),
    Sketcher.Constraint("DistanceX", 8, 2, 8, 1, Q("2000 mm")),
    Sketcher.Constraint("DistanceX", 8, 2, -1, 1, Q("2500 mm")),
    Sketcher.Constraint("DistanceX", 3, 2, 4, 2, Q("2500 mm")),
    Sketcher.Constraint("DistanceX", 7, 2, 8, 2, Q("3000 mm")),
    Sketcher.Constraint("DistanceY", -1, 1, 0, 2, Q("2600 mm")),
])
sketch3.setExpression("Constraints[30]", "Params.sketch3_width")
sketch3.setExpression("Constraints[31]", "Params.sketch3_width2")
pocket1 = body.newObject("PartDesign::Pocket", "Pocket")
pocket1.Profile = sketch3
pocket1.setExpression("Length", "Params.pocket1_length")

# Sketch on YZ plane
sketch4 = body.newObject("Sketcher::SketchObject", "Sketch003")
sketch4.AttachmentSupport = (doc.getObject("YZ_Plane"), [""])
sketch4.MapMode = "FlatFace"
sketch4.AttachmentOffset = App.Placement(App.Vector(0, 0, 1250), App.Rotation())
sketch4.addGeometry([
    Part.LineSegment(App.Vector(2600, -13870, 0), App.Vector(2600, -9870, 0)),
    Part.LineSegment(App.Vector(2600, -9870, 0), App.Vector(1600, -9870, 0)),
    Part.LineSegment(App.Vector(1600, -9870, 0), App.Vector(1600, -13870, 0)),
    Part.LineSegment(App.Vector(1600, -13870, 0), App.Vector(2600, -13870, 0)),
], False)
sketch4.addConstraint([
    Sketcher.Constraint("Coincident", 0, 2, 1, 1),
    Sketcher.Constraint("Coincident", 1, 2, 2, 1),
    Sketcher.Constraint("Coincident", 2, 2, 3, 1),
    Sketcher.Constraint("Coincident", 3, 2, 0, 1),
    Sketcher.Constraint("Vertical", 0),
    Sketcher.Constraint("Horizontal", 1),
    Sketcher.Constraint("Vertical", 2),
    Sketcher.Constraint("Horizontal", 3),
    Sketcher.Constraint("DistanceX", 1, 2, 1, 1, Q("1000 mm")),
    Sketcher.Constraint("DistanceY", 0, 1, 0, 2, Q("4000 mm")),
    Sketcher.Constraint("DistanceX", -1, 1, 0, 2, Q("2600 mm")),
    Sketcher.Constraint("DistanceY", 0, 2, -1, 1, Q("9870 mm")),
])
sketch4.setExpression("Constraints[8]", "Params.sketch4_width")
sketch4.setExpression("Constraints[9]", "Params.sketch4_height")
pocket2 = body.newObject("PartDesign::Pocket", "Pocket001")
pocket2.Profile = sketch4
pocket2.setExpression("Length", "Params.pocket2_length")

# Sketch on YZ plane
sketch5 = body.newObject("Sketcher::SketchObject", "Sketch004")
sketch5.AttachmentSupport = (doc.getObject("YZ_Plane"), [""])
sketch5.MapMode = "FlatFace"
sketch5.AttachmentOffset = App.Placement(App.Vector(0, 0, -1180), App.Rotation())
sketch5.addGeometry([
    Part.LineSegment(App.Vector(2600, -7620, 0), App.Vector(2600, -5230, 0)),
    Part.LineSegment(App.Vector(2600, -5230, 0), App.Vector(1600, -5230, 0)),
    Part.LineSegment(App.Vector(1600, -5230, 0), App.Vector(1600, -7620, 0)),
    Part.LineSegment(App.Vector(1600, -7620, 0), App.Vector(2600, -7620, 0)),
], False)
sketch5.addConstraint([
    Sketcher.Constraint("Coincident", 0, 2, 1, 1),
    Sketcher.Constraint("Coincident", 1, 2, 2, 1),
    Sketcher.Constraint("Coincident", 2, 2, 3, 1),
    Sketcher.Constraint("Coincident", 3, 2, 0, 1),
    Sketcher.Constraint("Vertical", 0),
    Sketcher.Constraint("Horizontal", 1),
    Sketcher.Constraint("Vertical", 2),
    Sketcher.Constraint("Horizontal", 3),
    Sketcher.Constraint("DistanceX", 1, 2, 1, 1, Q("1000 mm")),
    Sketcher.Constraint("DistanceY", 0, 1, 0, 2, Q("2390 mm")),
    Sketcher.Constraint("DistanceX", -1, 1, 0, 2, Q("2600 mm")),
    Sketcher.Constraint("DistanceY", 0, 2, -1, 1, Q("5230 mm")),
])
sketch5.setExpression("Constraints[8]", "Params.sketch5_width")
sketch5.setExpression("Constraints[9]", "Params.sketch5_height")
pocket3 = body.newObject("PartDesign::Pocket", "Pocket002")
pocket3.Profile = sketch5
pocket3.setExpression("Length", "Params.pocket3_length")

# Sketch on YZ plane
sketch6 = body.newObject("Sketcher::SketchObject", "Sketch005")
sketch6.AttachmentSupport = (doc.getObject("YZ_Plane"), [""])
sketch6.MapMode = "FlatFace"
sketch6.AttachmentOffset = App.Placement(App.Vector(0, 0, -11230), App.Rotation())
sketch6.addGeometry([
    Part.LineSegment(App.Vector(2600, -5970, 0), App.Vector(2600, -6470, 0)),
    Part.LineSegment(App.Vector(2600, -6470, 0), App.Vector(2100, -6470, 0)),
    Part.LineSegment(App.Vector(2100, -6470, 0), App.Vector(2100, -5970, 0)),
    Part.LineSegment(App.Vector(2100, -5970, 0), App.Vector(2600, -5970, 0)),
], False)
sketch6.addConstraint([
    Sketcher.Constraint("Coincident", 0, 2, 1, 1),
    Sketcher.Constraint("Coincident", 1, 2, 2, 1),
    Sketcher.Constraint("Coincident", 2, 2, 3, 1),
    Sketcher.Constraint("Coincident", 3, 2, 0, 1),
    Sketcher.Constraint("Vertical", 0),
    Sketcher.Constraint("Horizontal", 1),
    Sketcher.Constraint("Vertical", 2),
    Sketcher.Constraint("Horizontal", 3),
    Sketcher.Constraint("Equal", 3, 0),
    Sketcher.Constraint("DistanceX", 1, 2, 1, 1, Q("500 mm")),
    Sketcher.Constraint("DistanceX", -1, 1, 0, 2, Q("2600 mm")),
    Sketcher.Constraint("DistanceY", 0, 2, -1, 1, Q("6470 mm")),
])
sketch6.setExpression("Constraints[9]", "Params.sketch6_width")
pocket4 = body.newObject("PartDesign::Pocket", "Pocket003")
pocket4.Profile = sketch6
pocket4.setExpression("Length", "Params.pocket4_length")
pocket4.Reversed = True

doc.recompute()
